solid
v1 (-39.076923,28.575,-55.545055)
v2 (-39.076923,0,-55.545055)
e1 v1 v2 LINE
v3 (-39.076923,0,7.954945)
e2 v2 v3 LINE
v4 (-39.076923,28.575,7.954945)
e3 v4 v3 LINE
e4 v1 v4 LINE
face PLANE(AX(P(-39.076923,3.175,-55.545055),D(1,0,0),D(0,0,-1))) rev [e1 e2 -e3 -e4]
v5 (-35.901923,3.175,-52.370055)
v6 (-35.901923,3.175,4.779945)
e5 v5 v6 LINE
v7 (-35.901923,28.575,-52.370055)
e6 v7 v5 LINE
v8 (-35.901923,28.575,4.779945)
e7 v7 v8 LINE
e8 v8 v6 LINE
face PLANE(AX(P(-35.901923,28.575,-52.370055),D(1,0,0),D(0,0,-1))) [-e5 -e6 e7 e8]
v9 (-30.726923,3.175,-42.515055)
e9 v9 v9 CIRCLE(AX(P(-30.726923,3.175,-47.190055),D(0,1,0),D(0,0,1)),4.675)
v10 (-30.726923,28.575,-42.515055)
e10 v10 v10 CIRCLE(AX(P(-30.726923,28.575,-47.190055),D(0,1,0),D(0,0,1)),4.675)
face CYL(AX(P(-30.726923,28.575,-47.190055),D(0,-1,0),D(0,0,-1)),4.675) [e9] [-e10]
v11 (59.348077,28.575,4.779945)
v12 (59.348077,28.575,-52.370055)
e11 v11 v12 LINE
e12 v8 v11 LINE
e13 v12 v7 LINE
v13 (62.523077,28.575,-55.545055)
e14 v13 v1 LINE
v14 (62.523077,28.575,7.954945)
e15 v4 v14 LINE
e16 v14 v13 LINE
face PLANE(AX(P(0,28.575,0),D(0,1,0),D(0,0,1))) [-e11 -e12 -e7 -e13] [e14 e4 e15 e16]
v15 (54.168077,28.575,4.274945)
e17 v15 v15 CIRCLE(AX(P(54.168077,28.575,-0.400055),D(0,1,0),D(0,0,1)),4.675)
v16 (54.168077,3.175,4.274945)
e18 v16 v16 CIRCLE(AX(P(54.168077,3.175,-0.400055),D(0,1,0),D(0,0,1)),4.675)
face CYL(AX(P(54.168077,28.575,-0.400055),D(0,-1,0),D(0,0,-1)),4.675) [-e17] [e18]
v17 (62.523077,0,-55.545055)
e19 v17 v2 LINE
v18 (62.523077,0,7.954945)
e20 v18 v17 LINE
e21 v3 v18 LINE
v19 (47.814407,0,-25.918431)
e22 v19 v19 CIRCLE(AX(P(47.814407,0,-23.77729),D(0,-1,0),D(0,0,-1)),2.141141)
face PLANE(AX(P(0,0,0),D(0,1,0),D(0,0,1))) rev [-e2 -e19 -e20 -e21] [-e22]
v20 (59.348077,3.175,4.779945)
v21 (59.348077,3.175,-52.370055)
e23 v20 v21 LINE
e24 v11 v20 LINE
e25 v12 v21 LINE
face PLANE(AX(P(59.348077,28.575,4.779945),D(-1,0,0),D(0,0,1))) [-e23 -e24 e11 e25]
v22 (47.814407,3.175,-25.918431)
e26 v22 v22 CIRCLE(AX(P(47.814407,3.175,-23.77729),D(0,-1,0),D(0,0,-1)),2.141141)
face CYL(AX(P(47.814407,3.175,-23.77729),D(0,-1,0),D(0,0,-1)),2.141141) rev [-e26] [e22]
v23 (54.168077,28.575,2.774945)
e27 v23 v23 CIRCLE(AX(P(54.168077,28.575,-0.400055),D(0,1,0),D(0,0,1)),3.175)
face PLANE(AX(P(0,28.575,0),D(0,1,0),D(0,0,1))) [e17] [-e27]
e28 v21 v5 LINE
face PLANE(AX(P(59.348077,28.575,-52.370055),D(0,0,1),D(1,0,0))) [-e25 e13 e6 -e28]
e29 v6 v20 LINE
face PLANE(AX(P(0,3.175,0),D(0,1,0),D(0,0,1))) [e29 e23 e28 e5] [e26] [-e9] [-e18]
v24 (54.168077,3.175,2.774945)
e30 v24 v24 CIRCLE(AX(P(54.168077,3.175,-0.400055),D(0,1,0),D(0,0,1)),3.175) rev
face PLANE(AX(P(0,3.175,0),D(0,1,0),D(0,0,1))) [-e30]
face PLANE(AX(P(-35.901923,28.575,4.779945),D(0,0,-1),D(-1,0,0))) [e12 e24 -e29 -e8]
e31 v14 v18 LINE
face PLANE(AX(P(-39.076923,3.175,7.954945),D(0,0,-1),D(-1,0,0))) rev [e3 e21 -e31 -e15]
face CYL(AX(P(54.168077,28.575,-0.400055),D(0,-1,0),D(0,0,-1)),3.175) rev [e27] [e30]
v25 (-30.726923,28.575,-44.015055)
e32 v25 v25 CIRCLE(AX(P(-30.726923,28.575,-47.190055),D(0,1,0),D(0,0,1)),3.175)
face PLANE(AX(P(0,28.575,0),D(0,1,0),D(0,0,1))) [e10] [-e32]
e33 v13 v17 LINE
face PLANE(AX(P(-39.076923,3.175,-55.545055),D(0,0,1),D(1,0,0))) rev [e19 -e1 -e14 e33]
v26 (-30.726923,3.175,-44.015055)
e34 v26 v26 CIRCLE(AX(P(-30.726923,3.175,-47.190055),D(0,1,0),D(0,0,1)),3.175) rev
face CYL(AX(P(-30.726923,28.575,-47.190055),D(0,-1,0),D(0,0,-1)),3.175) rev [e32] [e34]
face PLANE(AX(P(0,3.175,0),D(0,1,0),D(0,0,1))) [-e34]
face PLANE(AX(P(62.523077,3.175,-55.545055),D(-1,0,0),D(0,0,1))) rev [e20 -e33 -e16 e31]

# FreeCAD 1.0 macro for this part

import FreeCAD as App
import Part
import Sketcher
from FreeCAD import Vector
Q = App.Units.Quantity

doc = App.newDocument("Part")
body = doc.addObject("PartDesign::Body", "Body")

# Sketch on XZ plane
sketch1 = body.newObject("Sketcher::SketchObject", "Sketch")
sketch1.AttachmentSupport = (doc.getObject("XZ_Plane"), [""])
sketch1.MapMode = "FlatFace"
sketch1.addGeometry([
    Part.LineSegment(Vector(-39, -56, 0), Vector(-39, 8, 0)),
    Part.LineSegment(Vector(-39, 8, 0), Vector(63, 8, 0)),
    Part.LineSegment(Vector(63, 8, 0), Vector(63, -56, 0)),
    Part.LineSegment(Vector(63, -56, 0), Vector(-39, -56, 0)),
], False)
sketch1.addConstraint([
    Sketcher.Constraint("Coincident", 0, 2, 1, 1),
    Sketcher.Constraint("Coincident", 1, 2, 2, 1),
    Sketcher.Constraint("Coincident", 2, 2, 3, 1),
    Sketcher.Constraint("Coincident", 3, 2, 0, 1),
    Sketcher.Constraint("Vertical", 0),
    Sketcher.Constraint("Horizontal", 1),
    Sketcher.Constraint("Vertical", 2),
    Sketcher.Constraint("Horizontal", 3),
    Sketcher.Constraint("DistanceX", 1, 1, 1, 2, Q("4 in")),
    Sketcher.Constraint("DistanceY", 0, 1, 0, 2, Q("2.5 in")),
    Sketcher.Constraint("DistanceX", 0, 2, -1, 1, Q("39.076923 mm")),
    Sketcher.Constraint("DistanceY", -1, 1, 0, 2, Q("7.954945 mm")),
])
pad1 = body.newObject("PartDesign::Pad", "Pad")
pad1.Profile = sketch1
pad1.Length = Q("0.125 in")
pad1.Reversed = True

# Sketch on XZ plane
sketch2 = body.newObject("Sketcher::SketchObject", "Sketch001")
sketch2.AttachmentSupport = (doc.getObject("XZ_Plane"), [""])
sketch2.MapMode = "FlatFace"
sketch2.AttachmentOffset = App.Placement(Vector(0, 0, -0.125 * 25.4), App.Rotation())
sketch2.addGeometry([
    Part.LineSegment(Vector(-39, -56, 0), Vector(-39, 8, 0)),  # 0
    Part.LineSegment(Vector(-39, 8, 0), Vector(63, 8, 0)),  # 1
    Part.LineSegment(Vector(63, 8, 0), Vector(63, -56, 0)),  # 2
    Part.LineSegment(Vector(63, -56, 0), Vector(-39, -56, 0)),  # 3
    Part.LineSegment(Vector(59, 5, 0), Vector(-36, 5, 0)),  # 4
    Part.LineSegment(Vector(-36, 5, 0), Vector(-36, -52, 0)),  # 5
    Part.LineSegment(Vector(-36, -52, 0), Vector(59, -52, 0)),  # 6
    Part.LineSegment(Vector(59, -52, 0), Vector(59, 5, 0)),  # 7
], False)
sketch2.addConstraint([
    Sketcher.Constraint("Coincident", 0, 2, 1, 1),
    Sketcher.Constraint("Coincident", 1, 2, 2, 1),
    Sketcher.Constraint("Coincident", 2, 2, 3, 1),
    Sketcher.Constraint("Coincident", 3, 2, 0, 1),
    Sketcher.Constraint("Coincident", 4, 2, 5, 1),
    Sketcher.Constraint("Coincident", 5, 2, 6, 1),
    Sketcher.Constraint("Coincident", 6, 2, 7, 1),
    Sketcher.Constraint("Coincident", 7, 2, 4, 1),
    Sketcher.Constraint("Vertical", 0),
    Sketcher.Constraint("Horizontal", 1),
    Sketcher.Constraint("Vertical", 2),
    Sketcher.Constraint("Horizontal", 3),
    Sketcher.Constraint("Horizontal", 4),
    Sketcher.Constraint("Vertical", 5),
    Sketcher.Constraint("Horizontal", 6),
    Sketcher.Constraint("Vertical", 7),
    Sketcher.Constraint("DistanceX", 1, 1, 1, 2, Q("4 in")),
    Sketcher.Constraint("DistanceY", 0, 1, 0, 2, Q("2.5 in")),
    Sketcher.Constraint("DistanceX", 4, 2, 4, 1, Q("3.75 in")),
    Sketcher.Constraint("DistanceY", 5, 2, 5, 1, Q("2.25 in")),
    Sketcher.Constraint("DistanceX", 0, 2, 4, 2, Q("0.125 in")),
    Sketcher.Constraint("DistanceY", 4, 2, 0, 2, Q("0.125 in")),
    Sketcher.Constraint("DistanceX", 0, 2, -1, 1, Q("39.076923 mm")),
    Sketcher.Constraint("DistanceY", -1, 1, 0, 2, Q("7.954945 mm")),
])
pad2 = body.newObject("PartDesign::Pad", "Pad001")
pad2.Profile = sketch2
pad2.Length = Q("1 in")
pad2.Reversed = True

# Sketch on XZ plane
sketch3 = body.newObject("Sketcher::SketchObject", "Sketch002")
sketch3.AttachmentSupport = (doc.getObject("XZ_Plane"), [""])
sketch3.MapMode = "FlatFace"
sketch3.addGeometry(Part.Circle(Vector(47.8, -23.8, 0), Vector(0, 0, 1), 2.1), False)
sketch3.addConstraint([
    Sketcher.Constraint("Diameter", 0, Q("4.282283 mm")),
    Sketcher.Constraint("DistanceY", 0, 3, -1, 1, Q("23.77729 mm")),
    Sketcher.Constraint("DistanceX", -1, 1, 0, 3, Q("47.814407 mm")),
])
pocket1 = body.newObject("PartDesign::Pocket", "Pocket")
pocket1.Profile = sketch3
pocket1.Length = Q("0.125 in")

# Sketch on XZ plane
sketch4 = body.newObject("Sketcher::SketchObject", "Sketch003")
sketch4.AttachmentSupport = (doc.getObject("XZ_Plane"), [""])
sketch4.MapMode = "FlatFace"
sketch4.AttachmentOffset = App.Placement(Vector(0, 0, -0.125 * 25.4), App.Rotation())
sketch4.addGeometry([
    Part.Circle(Vector(-30.7, -47.2, 0), Vector(0, 0, 1), 4.7),
    Part.Circle(Vector(-30.7, -47.2, 0), Vector(0, 0, 1), 3.2),
    Part.Circle(Vector(54.2, -0.4, 0), Vector(0, 0, 1), 4.7),
    Part.Circle(Vector(54.2, -0.4, 0), Vector(0, 0, 1), 3.2),
], False)
sketch4.addConstraint([
    Sketcher.Constraint("Coincident", 1, 3, 0, 3),
    Sketcher.Constraint("Coincident", 3, 3, 2, 3),
    Sketcher.Constraint("Equal", 0, 2),
    Sketcher.Constraint("Equal", 1, 3),
    Sketcher.Constraint("Diameter", 1, Q("0.25 in")),
    Sketcher.Constraint("Diameter", 0, Q("9.35 mm")),
    Sketcher.Constraint("DistanceX", 0, 3, 2, 3, Q("84.895 mm")),
    Sketcher.Constraint("DistanceY", 0, 3, 2, 3, Q("46.79 mm")),
    Sketcher.Constraint("DistanceX", 0, 3, -1, 1, Q("30.726923 mm")),
    Sketcher.Constraint("DistanceY", 0, 3, -1, 1, Q("47.190055 mm")),
])
pad3 = body.newObject("PartDesign::Pad", "Pad002")
pad3.Profile = sketch4
pad3.Length = Q("1 in")
pad3.Reversed = True

doc.recompute()
